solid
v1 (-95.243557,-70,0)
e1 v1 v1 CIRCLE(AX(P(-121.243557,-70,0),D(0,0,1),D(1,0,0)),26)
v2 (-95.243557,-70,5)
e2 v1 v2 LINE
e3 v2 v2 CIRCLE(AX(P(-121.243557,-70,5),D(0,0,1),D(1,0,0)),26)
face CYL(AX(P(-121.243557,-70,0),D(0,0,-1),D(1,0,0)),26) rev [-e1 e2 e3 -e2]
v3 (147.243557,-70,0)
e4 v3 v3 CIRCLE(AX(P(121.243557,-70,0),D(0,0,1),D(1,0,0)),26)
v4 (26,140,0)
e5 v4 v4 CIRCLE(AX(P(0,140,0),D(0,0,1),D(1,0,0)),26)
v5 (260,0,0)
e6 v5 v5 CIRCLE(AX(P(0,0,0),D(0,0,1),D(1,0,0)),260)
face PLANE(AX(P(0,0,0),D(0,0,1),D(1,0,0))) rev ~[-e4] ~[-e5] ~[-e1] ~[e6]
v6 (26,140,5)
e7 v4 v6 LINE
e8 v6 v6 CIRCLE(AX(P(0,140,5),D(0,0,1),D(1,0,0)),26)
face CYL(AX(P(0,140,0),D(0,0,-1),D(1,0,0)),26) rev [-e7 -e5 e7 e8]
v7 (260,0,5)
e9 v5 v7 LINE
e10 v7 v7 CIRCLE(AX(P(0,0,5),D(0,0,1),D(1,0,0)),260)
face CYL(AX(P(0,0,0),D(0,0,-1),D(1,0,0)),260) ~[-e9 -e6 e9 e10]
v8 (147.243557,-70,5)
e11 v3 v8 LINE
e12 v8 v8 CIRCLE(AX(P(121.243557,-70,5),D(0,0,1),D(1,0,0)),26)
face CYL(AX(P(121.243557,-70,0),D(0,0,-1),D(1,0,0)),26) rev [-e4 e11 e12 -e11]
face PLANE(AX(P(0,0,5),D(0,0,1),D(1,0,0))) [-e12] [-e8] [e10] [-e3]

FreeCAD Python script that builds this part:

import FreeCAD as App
import Part
import Sketcher

V = App.Vector

doc = App.newDocument("Part")
body = doc.addObject("PartDesign::Body", "Body")

# Sketch on XY plane
sketch1 = doc.addObject("Sketcher::SketchObject", "Sketch")
body.addObject(sketch1)
sketch1.AttachmentSupport = (doc.XY_Plane, [""])
sketch1.MapMode = "FlatFace"
sketch1.addGeometry(Part.Circle(V(0, 0, 0), V(0, 0, 1), 260), False)
sketch1.addGeometry(Part.Circle(V(-121, -70, 0), V(0, 0, 1), 26), False)
sketch1.addGeometry(Part.Circle(V(121, -70, 0), V(0, 0, 1), 26), False)
sketch1.addGeometry(Part.Circle(V(0, 140, 0), V(0, 0, 1), 26), False)
sketch1.addConstraint(Sketcher.Constraint("Coincident", 0, 3, -1, 1))
sketch1.addConstraint(Sketcher.Constraint("Equal", 1, 2))
sketch1.addConstraint(Sketcher.Constraint("Equal", 2, 3))
sketch1.addConstraint(Sketcher.Constraint("Symmetric", 1, 3, 2, 3, -2))
sketch1.addConstraint(Sketcher.Constraint("PointOnObject", 3, 3, -2))
sketch1.addConstraint(Sketcher.Constraint("Diameter", 0, 520.0))
sketch1.addConstraint(Sketcher.Constraint("Diameter", 1, 52.0))
sketch1.addConstraint(Sketcher.Constraint("DistanceY", 1, 3, -1, 1, 70.0))
sketch1.addConstraint(Sketcher.Constraint("DistanceY", -1, 1, 3, 3, 140.0))
sketch1.addConstraint(Sketcher.Constraint("DistanceX", 1, 3, -1, 1, 121.243557))
pad1 = doc.addObject("PartDesign::Pad", "Pad")
body.addObject(pad1)
pad1.Profile = sketch1
pad1.Length = 5

doc.recompute()
